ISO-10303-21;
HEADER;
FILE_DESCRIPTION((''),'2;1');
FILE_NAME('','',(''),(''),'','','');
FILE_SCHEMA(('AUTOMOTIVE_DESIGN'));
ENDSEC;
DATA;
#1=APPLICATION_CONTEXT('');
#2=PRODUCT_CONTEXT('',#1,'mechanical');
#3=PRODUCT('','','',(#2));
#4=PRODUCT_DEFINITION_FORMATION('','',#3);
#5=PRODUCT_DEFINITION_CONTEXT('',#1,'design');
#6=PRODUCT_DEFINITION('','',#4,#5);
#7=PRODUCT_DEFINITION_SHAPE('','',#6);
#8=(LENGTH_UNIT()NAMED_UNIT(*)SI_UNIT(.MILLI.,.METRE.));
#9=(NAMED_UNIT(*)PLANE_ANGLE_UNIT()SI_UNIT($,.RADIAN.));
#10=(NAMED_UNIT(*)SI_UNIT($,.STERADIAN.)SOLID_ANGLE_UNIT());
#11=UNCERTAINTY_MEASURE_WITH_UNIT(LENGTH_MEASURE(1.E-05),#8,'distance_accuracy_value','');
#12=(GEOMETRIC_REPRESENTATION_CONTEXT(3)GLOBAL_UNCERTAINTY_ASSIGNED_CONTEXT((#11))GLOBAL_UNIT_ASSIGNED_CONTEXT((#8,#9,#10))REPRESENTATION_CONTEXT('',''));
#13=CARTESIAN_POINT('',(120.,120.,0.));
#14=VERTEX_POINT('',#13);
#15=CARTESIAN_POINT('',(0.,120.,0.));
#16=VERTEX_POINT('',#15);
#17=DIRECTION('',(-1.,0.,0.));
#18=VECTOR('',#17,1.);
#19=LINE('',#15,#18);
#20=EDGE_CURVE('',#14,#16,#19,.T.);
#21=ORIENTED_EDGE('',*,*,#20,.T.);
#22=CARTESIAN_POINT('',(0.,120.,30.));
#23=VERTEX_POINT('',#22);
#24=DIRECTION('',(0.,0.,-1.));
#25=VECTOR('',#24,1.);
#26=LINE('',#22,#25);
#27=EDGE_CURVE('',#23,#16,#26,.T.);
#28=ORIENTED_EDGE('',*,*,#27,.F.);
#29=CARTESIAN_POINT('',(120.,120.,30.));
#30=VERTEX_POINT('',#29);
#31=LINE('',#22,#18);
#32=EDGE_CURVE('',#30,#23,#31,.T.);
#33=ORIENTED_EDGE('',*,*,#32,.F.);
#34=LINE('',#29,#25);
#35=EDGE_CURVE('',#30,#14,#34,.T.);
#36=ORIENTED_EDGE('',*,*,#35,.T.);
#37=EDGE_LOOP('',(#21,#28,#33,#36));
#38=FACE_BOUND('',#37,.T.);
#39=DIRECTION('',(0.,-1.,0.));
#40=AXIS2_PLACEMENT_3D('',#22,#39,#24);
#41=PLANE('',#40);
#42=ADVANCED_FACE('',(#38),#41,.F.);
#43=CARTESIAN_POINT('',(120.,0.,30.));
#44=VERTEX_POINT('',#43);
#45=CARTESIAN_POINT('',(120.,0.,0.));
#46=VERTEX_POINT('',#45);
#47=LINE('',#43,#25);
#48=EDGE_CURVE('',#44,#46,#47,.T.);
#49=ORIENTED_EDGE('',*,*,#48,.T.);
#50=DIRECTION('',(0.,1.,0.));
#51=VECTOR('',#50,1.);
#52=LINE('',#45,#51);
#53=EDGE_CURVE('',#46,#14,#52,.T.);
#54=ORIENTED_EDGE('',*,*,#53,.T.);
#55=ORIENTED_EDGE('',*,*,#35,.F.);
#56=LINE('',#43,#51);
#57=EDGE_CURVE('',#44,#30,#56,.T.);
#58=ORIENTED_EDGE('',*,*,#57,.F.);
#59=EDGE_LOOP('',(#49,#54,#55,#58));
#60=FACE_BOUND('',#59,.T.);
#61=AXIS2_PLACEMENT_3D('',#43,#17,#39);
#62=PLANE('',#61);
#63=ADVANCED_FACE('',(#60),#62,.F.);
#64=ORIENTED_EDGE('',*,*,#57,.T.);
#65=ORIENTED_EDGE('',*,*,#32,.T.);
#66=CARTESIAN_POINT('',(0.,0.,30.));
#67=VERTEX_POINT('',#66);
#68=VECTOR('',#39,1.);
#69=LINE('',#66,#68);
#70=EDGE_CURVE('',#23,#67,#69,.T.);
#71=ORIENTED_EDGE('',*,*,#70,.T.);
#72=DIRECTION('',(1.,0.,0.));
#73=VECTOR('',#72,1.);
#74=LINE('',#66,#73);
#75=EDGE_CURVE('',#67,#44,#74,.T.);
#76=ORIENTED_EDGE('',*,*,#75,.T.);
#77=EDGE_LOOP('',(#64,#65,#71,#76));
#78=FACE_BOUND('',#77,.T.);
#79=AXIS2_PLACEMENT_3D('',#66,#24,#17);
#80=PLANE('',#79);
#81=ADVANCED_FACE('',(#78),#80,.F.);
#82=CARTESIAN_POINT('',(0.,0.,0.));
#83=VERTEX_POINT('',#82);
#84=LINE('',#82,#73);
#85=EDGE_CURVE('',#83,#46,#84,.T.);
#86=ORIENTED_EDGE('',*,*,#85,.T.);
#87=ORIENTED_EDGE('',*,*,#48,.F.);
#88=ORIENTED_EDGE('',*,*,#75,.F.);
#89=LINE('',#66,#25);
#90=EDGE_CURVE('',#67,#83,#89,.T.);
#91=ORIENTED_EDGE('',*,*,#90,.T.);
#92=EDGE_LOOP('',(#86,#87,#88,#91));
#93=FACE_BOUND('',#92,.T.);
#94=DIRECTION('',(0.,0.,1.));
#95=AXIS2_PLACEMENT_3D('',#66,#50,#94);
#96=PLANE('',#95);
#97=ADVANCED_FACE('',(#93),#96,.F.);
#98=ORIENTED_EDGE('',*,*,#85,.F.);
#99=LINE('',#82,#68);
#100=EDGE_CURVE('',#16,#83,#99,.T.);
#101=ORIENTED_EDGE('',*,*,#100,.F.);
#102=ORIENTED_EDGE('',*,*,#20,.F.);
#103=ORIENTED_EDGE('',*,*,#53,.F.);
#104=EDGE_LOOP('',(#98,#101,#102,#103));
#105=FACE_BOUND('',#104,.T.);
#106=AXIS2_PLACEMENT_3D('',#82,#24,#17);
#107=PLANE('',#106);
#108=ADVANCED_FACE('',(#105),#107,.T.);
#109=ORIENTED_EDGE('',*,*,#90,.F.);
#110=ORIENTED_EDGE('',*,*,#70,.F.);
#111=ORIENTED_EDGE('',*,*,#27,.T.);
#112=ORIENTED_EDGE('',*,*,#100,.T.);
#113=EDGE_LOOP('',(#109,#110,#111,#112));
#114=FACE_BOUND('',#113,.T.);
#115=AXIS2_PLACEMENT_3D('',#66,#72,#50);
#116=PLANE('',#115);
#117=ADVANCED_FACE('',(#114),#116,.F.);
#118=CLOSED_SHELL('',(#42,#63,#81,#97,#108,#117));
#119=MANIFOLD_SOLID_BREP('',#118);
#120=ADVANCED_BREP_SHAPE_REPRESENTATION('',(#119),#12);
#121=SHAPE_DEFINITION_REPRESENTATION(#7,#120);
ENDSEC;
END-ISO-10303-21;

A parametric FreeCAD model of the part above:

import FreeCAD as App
import Part
import Sketcher

V = App.Vector
Q = App.Units.Quantity

doc = App.newDocument("Part")
body = doc.addObject("PartDesign::Body", "Body")

# Sketch on XY plane
sketch1 = body.newObject("Sketcher::SketchObject", "Sketch")
sketch1.AttachmentSupport = (doc.getObject("XY_Plane"), [""])
sketch1.MapMode = "FlatFace"
sketch1.addGeometry(Part.LineSegment(V(0, 120, 0), V(0, 0, 0)), False)
sketch1.addGeometry(Part.LineSegment(V(0, 0, 0), V(120, 0, 0)), False)
sketch1.addGeometry(Part.LineSegment(V(120, 0, 0), V(120, 120, 0)), False)
sketch1.addGeometry(Part.LineSegment(V(120, 120, 0), V(0, 120, 0)), False)
sketch1.addConstraint(Sketcher.Constraint("Coincident", 0, 2, 1, 1))
sketch1.addConstraint(Sketcher.Constraint("Coincident", 1, 2, 2, 1))
sketch1.addConstraint(Sketcher.Constraint("Coincident", 2, 2, 3, 1))
sketch1.addConstraint(Sketcher.Constraint("Coincident", 3, 2, 0, 1))
sketch1.addConstraint(Sketcher.Constraint("Vertical", 0))
sketch1.addConstraint(Sketcher.Constraint("Horizontal", 1))
sketch1.addConstraint(Sketcher.Constraint("Vertical", 2))
sketch1.addConstraint(Sketcher.Constraint("Horizontal", 3))
sketch1.addConstraint(Sketcher.Constraint("Coincident", 0, 2, -1, 1))
sketch1.addConstraint(Sketcher.Constraint("Equal", 3, 0))
sketch1.addConstraint(Sketcher.Constraint("DistanceX", 1, 1, 1, 2, Q("120 mm")))
pad1 = body.newObject("PartDesign::Pad", "Pad")
pad1.Profile = sketch1
pad1.Length = 30

doc.recompute()
